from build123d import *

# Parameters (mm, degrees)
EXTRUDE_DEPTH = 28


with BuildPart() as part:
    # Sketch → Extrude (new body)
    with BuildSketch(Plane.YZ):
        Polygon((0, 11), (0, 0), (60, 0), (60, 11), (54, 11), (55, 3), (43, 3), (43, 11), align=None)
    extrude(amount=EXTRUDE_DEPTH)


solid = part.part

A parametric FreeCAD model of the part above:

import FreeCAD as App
import Part
import Sketcher
from FreeCAD import Vector
Q = App.Units.Quantity

doc = App.newDocument("Part")
params = doc.addObject("Spreadsheet::Sheet", "Params")
for row, (alias, value) in enumerate([
    ("sketch1_width", "60 mm"),
    ("sketch1_width2", "6 mm"),
    ("sketch1_width3", "12 mm"),
    ("sketch1_width4", "43 mm"),
    ("sketch1_height", "11 mm"),
    ("pad1_length", "28 mm"),
], start=1):
    params.set(f"A{row}", alias)
    params.set(f"B{row}", "=" + value)
    params.setAlias(f"B{row}", alias)

body = doc.addObject("PartDesign::Body", "Body")

# Sketch on YZ plane
sketch1 = body.newObject("Sketcher::SketchObject", "Sketch")
sketch1.AttachmentSupport = (doc.getObject("YZ_Plane"), [""])
sketch1.MapMode = "FlatFace"
sketch1.addGeometry([
    Part.LineSegment(Vector(0, 11, 0), Vector(0, 0, 0)),  # 0
    Part.LineSegment(Vector(0, 0, 0), Vector(60, 0, 0)),  # 1
    Part.LineSegment(Vector(60, 0, 0), Vector(60, 11, 0)),  # 2
    Part.LineSegment(Vector(60, 11, 0), Vector(54, 11, 0)),  # 3
    Part.LineSegment(Vector(54, 11, 0), Vector(55, 3, 0)),  # 4
    Part.LineSegment(Vector(55, 3, 0), Vector(43, 3, 0)),  # 5
    Part.LineSegment(Vector(43, 3, 0), Vector(43, 11, 0)),  # 6
    Part.LineSegment(Vector(43, 11, 0), Vector(0, 11, 0)),  # 7
], False)
sketch1.addConstraint([
    Sketcher.Constraint("Coincident", 0, 2, 1, 1),
    Sketcher.Constraint("Coincident", 1, 2, 2, 1),
    Sketcher.Constraint("Coincident", 2, 2, 3, 1),
    Sketcher.Constraint("Coincident", 3, 2, 4, 1),
    Sketcher.Constraint("Coincident", 4, 2, 5, 1),
    Sketcher.Constraint("Coincident", 5, 2, 6, 1),
    Sketcher.Constraint("Coincident", 6, 2, 7, 1),
    Sketcher.Constraint("Coincident", 7, 2, 0, 1),
    Sketcher.Constraint("Vertical", 0),
    Sketcher.Constraint("Horizontal", 1),
    Sketcher.Constraint("Vertical", 2),
    Sketcher.Constraint("Horizontal", 3),
    Sketcher.Constraint("Horizontal", 5),
    Sketcher.Constraint("Vertical", 6),
    Sketcher.Constraint("Horizontal", 7),
    Sketcher.Constraint("Coincident", 0, 2, -1, 1),
    Sketcher.Constraint("Horizontal", 3, 2, 6, 2),
    Sketcher.Constraint("DistanceX", 1, 1, 1, 2, Q("60 mm")),
    Sketcher.Constraint("DistanceX", 3, 2, 3, 1, Q("6 mm")),
    Sketcher.Constraint("DistanceX", 5, 2, 5, 1, Q("12 mm")),
    Sketcher.Constraint("DistanceX", 7, 2, 7, 1, Q("43 mm")),
    Sketcher.Constraint("DistanceY", 0, 2, 0, 1, Q("11 mm")),
    Sketcher.Constraint("DistanceY", 6, 1, 6, 2, Q("8 mm")),
])
sketch1.setExpression("Constraints[17]", "Params.sketch1_width")
sketch1.setExpression("Constraints[18]", "Params.sketch1_width2")
sketch1.setExpression("Constraints[19]", "Params.sketch1_width3")
sketch1.setExpression("Constraints[20]", "Params.sketch1_width4")
sketch1.setExpression("Constraints[21]", "Params.sketch1_height")
pad1 = body.newObject("PartDesign::Pad", "Pad")
pad1.Profile = sketch1
pad1.setExpression("Length", "Params.pad1_length")

doc.recompute()
